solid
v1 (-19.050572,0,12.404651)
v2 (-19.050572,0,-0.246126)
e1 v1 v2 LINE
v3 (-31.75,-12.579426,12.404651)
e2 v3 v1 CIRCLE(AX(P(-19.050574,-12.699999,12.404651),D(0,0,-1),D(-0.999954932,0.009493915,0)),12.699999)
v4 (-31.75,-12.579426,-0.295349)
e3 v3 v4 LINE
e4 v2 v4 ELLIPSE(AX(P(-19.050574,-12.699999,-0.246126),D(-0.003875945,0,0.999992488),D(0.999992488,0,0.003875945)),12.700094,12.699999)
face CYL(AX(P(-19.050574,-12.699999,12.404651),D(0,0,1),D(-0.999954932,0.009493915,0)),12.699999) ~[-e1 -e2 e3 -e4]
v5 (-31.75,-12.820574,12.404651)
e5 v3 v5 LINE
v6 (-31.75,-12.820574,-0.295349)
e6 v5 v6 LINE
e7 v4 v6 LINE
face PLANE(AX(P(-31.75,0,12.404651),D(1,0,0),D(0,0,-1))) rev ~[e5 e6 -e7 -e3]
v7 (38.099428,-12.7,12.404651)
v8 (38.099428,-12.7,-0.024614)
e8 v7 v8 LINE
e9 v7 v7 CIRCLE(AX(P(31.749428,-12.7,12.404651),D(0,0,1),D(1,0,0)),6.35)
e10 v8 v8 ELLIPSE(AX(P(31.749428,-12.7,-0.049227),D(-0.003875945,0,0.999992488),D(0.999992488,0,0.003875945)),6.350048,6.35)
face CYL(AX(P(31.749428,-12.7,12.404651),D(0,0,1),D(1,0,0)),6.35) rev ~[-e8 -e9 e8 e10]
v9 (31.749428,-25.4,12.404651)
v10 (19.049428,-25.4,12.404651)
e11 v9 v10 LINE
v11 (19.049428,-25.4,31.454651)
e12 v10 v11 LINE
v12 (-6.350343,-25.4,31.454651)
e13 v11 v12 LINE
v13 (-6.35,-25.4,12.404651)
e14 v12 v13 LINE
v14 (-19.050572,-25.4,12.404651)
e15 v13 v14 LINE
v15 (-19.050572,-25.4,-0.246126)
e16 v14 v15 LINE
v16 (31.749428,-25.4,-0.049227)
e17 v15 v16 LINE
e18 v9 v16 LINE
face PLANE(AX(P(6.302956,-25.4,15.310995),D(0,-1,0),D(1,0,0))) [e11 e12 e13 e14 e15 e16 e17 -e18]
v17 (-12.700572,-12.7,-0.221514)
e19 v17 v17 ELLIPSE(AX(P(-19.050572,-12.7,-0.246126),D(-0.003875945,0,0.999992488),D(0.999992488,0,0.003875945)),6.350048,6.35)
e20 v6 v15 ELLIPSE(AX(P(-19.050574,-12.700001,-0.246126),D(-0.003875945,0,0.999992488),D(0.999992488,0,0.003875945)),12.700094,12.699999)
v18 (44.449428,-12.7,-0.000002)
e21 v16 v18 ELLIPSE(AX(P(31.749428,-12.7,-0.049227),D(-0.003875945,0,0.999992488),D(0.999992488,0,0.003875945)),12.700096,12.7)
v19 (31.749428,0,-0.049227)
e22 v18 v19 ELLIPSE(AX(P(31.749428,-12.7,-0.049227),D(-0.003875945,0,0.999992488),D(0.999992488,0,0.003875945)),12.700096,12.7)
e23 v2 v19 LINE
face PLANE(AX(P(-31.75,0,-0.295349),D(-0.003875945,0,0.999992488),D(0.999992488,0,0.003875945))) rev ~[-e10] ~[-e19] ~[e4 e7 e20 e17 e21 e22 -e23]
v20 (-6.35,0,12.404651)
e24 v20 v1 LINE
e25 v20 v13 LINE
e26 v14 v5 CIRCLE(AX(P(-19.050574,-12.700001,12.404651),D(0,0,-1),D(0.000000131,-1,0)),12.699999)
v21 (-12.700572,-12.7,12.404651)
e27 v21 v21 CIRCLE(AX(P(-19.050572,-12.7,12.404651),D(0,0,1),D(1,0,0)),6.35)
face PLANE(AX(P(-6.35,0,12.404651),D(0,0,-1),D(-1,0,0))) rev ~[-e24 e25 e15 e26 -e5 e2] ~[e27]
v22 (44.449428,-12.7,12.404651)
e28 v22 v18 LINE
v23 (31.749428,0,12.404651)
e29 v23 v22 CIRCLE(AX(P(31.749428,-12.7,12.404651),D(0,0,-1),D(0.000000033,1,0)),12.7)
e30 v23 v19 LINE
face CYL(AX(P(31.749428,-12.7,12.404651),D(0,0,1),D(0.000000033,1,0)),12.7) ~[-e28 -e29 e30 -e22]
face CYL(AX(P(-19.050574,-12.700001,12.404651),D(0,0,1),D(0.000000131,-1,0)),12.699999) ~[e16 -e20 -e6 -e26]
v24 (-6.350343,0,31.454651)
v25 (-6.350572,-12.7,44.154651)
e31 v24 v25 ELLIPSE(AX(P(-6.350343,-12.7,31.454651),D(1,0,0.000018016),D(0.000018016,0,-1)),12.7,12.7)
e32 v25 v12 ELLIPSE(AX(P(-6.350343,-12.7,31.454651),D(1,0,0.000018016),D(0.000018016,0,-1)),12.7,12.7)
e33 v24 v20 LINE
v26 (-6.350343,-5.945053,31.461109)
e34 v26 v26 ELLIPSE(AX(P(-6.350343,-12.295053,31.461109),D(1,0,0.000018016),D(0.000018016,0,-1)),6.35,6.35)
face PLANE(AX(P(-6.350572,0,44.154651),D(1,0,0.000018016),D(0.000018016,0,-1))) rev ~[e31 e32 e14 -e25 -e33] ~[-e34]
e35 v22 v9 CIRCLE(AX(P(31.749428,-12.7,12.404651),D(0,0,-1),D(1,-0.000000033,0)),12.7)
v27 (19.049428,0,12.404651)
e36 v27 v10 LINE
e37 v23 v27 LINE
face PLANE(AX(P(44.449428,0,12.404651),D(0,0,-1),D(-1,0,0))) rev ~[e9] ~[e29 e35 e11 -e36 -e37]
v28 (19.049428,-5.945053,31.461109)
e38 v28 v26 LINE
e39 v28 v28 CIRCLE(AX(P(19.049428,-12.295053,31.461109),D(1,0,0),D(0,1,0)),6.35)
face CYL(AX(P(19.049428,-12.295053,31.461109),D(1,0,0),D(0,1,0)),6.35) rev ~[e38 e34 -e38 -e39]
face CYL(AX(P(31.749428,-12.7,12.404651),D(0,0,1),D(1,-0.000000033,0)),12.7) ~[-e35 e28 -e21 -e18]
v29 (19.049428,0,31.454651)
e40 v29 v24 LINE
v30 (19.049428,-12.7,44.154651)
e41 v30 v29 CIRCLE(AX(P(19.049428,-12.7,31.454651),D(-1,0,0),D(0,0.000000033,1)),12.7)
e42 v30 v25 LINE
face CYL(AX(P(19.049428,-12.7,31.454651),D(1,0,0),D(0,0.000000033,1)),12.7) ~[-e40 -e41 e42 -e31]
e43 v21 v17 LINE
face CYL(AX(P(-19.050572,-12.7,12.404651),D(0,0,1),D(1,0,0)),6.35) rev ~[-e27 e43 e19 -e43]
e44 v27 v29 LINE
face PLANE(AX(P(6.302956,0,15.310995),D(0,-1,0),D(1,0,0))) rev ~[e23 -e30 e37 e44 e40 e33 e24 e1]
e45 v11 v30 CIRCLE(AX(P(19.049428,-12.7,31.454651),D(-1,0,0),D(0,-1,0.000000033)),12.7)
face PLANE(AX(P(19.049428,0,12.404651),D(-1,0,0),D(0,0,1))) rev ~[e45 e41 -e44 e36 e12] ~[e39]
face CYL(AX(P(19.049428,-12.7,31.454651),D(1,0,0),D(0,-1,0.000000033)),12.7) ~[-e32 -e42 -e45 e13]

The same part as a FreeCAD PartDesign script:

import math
import FreeCAD as App
import Part
import Sketcher
from FreeCAD import Vector
Q = App.Units.Quantity


def add_polygon(sketch, points):
    """Adds a closed chain of lines whose ends are joined by coincident constraints."""
    first, n = sketch.GeometryCount, len(points)
    for a, b in zip(points, points[1:] + points[:1]):
        sketch.addGeometry(Part.LineSegment(App.Vector(*a, 0), App.Vector(*b, 0)), False)
    for i in range(n):
        sketch.addConstraint(Sketcher.Constraint("Coincident", first + i, 2, first + (i + 1) % n, 1))

doc = App.newDocument("Part")
body = doc.addObject("PartDesign::Body", "Body")

sketch1 = body.newObject("Sketcher::SketchObject", "Sketch")
sketch1.AttachmentSupport = (doc.getObject("XZ_Plane"), [""])
sketch1.MapMode = "FlatFace"
add_polygon(sketch1, [(-32, 12), (-32, 0), (44, 0), (44, 12), (19, 12), (19, 44), (-6, 44), (-6, 12)])
sketch1.addConstraint([
    Sketcher.Constraint("Vertical", 0),
    Sketcher.Constraint("Vertical", 2),
    Sketcher.Constraint("Horizontal", 3),
    Sketcher.Constraint("Vertical", 4),
    Sketcher.Constraint("Horizontal", 5),
    Sketcher.Constraint("Horizontal", 7),
    Sketcher.Constraint("Horizontal", 3, 2, 6, 2),
    Sketcher.Constraint("Equal", 3, 5),
    Sketcher.Constraint("Equal", 5, 7),
    Sketcher.Constraint("DistanceX", 3, 2, 3, 1, Q("1 in")),
    Sketcher.Constraint("Distance", 1, Q("3 in")),
    Sketcher.Constraint("DistanceY", 0, 2, 0, 1, Q("0.5 in")),
    Sketcher.Constraint("DistanceY", 4, 1, 4, 2, Q("1.25 in")),
    Sketcher.Constraint("DistanceX", 0, 2, -1, 1, Q("1.25 in")),
    Sketcher.Constraint("DistanceY", 2, 1, 2, 2, 12.404653),
    Sketcher.Constraint("DistanceY", 0, 2, -1, 1, 0.295349),
])
pad1 = body.newObject("PartDesign::Pad", "Pad")
pad1.Profile = sketch1
pad1.Length = Q("1 in")

sketch2 = body.newObject("Sketcher::SketchObject", "Sketch001")
sketch2.AttachmentSupport = (doc.getObject("XY_Plane"), [""])
sketch2.MapMode = "FlatFace"
sketch2.AttachmentOffset = App.Placement(Vector(0, 0, 12.404651), App.Rotation())
sketch2.addGeometry([
    Part.Circle(Vector(-19.050572, -12.7, 0), Vector(0, 0, 1), 6.35),
    Part.ArcOfCircle(Part.Circle(Vector(-19.050574, -12.699999, 0), Vector(0, 0, 1), 12.699999), math.radians(89.999993), math.radians(179.456031)),
    Part.LineSegment(Vector(-19.050572, 0, 0), Vector(-31.75, 0, 0)),
    Part.LineSegment(Vector(-31.75, 0, 0), Vector(-31.75, -12.579426, 0)),
    Part.ArcOfCircle(Part.Circle(Vector(-19.050574, -12.700001, 0), Vector(0, 0, 1), 12.699999), math.radians(-179.456031), math.radians(-89.999993)),
    Part.LineSegment(Vector(-31.75, -12.820574, 0), Vector(-31.75, -25.4, 0)),
    Part.LineSegment(Vector(-31.75, -25.4, 0), Vector(-19.050572, -25.4, 0)),
], False)
sketch2.addConstraint([
    Sketcher.Constraint("Coincident", 1, 1, 2, 1),
    Sketcher.Constraint("Coincident", 2, 2, 3, 1),
    Sketcher.Constraint("Coincident", 3, 2, 1, 2),
    Sketcher.Constraint("Coincident", 4, 1, 5, 1),
    Sketcher.Constraint("Coincident", 5, 2, 6, 1),
    Sketcher.Constraint("Coincident", 6, 2, 4, 2),
    Sketcher.Constraint("Horizontal", 2),
    Sketcher.Constraint("Vertical", 3),
    Sketcher.Constraint("Vertical", 5),
    Sketcher.Constraint("Horizontal", 6),
    Sketcher.Constraint("Coincident", 1, 3, 0, 3),
    Sketcher.Constraint("Coincident", 4, 3, 0, 3),
    Sketcher.Constraint("PointOnObject", 1, 1, -1),
    Sketcher.Constraint("Diameter", 0, Q("0.5 in")),
    Sketcher.Constraint("Radius", 1, Q("0.4999999 in")),
    Sketcher.Constraint("Radius", 4, Q("0.4999999 in")),
    Sketcher.Constraint("DistanceX", 2, 2, -1, 1, Q("1.25 in")),
    Sketcher.Constraint("DistanceX", 4, 1, -1, 1, Q("1.25 in")),
    Sketcher.Constraint("DistanceX", 2, 2, 2, 1, 12.699428),
    Sketcher.Constraint("DistanceX", 6, 1, 6, 2, 12.699428),
    Sketcher.Constraint("DistanceY", 3, 2, 3, 1, 12.579426),
])
pocket1 = body.newObject("PartDesign::Pocket", "Pocket")
pocket1.Profile = sketch2
pocket1.Length = Q("1 in")

sketch3 = body.newObject("Sketcher::SketchObject", "Sketch002")
sketch3.AttachmentSupport = (doc.getObject("XY_Plane"), [""])
sketch3.MapMode = "FlatFace"
sketch3.AttachmentOffset = App.Placement(Vector(0, 0, 12.404651), App.Rotation())
sketch3.addGeometry([
    Part.Circle(Vector(32, -13, 0), Vector(0, 0, 1), 6),
    Part.ArcOfCircle(Part.Circle(Vector(32, -13, 0), Vector(0, 0, 1), 13), math.radians(0), math.radians(90)),
    Part.LineSegment(Vector(44, -13, 0), Vector(44, 0, 0)),
    Part.LineSegment(Vector(44, 0, 0), Vector(32, 0, 0)),
    Part.ArcOfCircle(Part.Circle(Vector(32, -13, 0), Vector(0, 0, 1), 13), math.radians(-90), math.radians(0)),
    Part.LineSegment(Vector(32, -25, 0), Vector(44, -25, 0)),
    Part.LineSegment(Vector(44, -25, 0), Vector(44, -13, 0)),
], False)
sketch3.addConstraint([
    Sketcher.Constraint("Tangent", 1, 1, 2, 1),
    Sketcher.Constraint("Coincident", 2, 2, 3, 1),
    Sketcher.Constraint("Tangent", 3, 2, 1, 2),
    Sketcher.Constraint("Tangent", 4, 1, 5, 1),
    Sketcher.Constraint("Coincident", 5, 2, 6, 1),
    Sketcher.Constraint("Tangent", 6, 2, 4, 2),
    Sketcher.Constraint("Vertical", 2),
    Sketcher.Constraint("Horizontal", 3),
    Sketcher.Constraint("Horizontal", 5),
    Sketcher.Constraint("Vertical", 6),
    Sketcher.Constraint("Coincident", 1, 3, 0, 3),
    Sketcher.Constraint("Coincident", 4, 3, 0, 3),
    Sketcher.Constraint("Equal", 1, 4),
    Sketcher.Constraint("PointOnObject", 2, 2, -1),
    Sketcher.Constraint("Diameter", 0, Q("0.5 in")),
    Sketcher.Constraint("Radius", 1, Q("0.5 in")),
    Sketcher.Constraint("DistanceX", -1, 1, 0, 3, 31.749428),
])
pocket2 = body.newObject("PartDesign::Pocket", "Pocket001")
pocket2.Profile = sketch3
pocket2.Length = Q("1 in")

sketch4 = body.newObject("Sketcher::SketchObject", "Sketch003")
sketch4.AttachmentSupport = (doc.getObject("YZ_Plane"), [""])
sketch4.MapMode = "FlatFace"
sketch4.AttachmentOffset = App.Placement(Vector(0, 0, 19.049428), App.Rotation())
sketch4.addGeometry([
    Part.Circle(Vector(-12, 31, 0), Vector(0, 0, 1), 6),
    Part.ArcOfCircle(Part.Circle(Vector(-13, 31, 0), Vector(0, 0, 1), 13), math.radians(0), math.radians(90)),
    Part.LineSegment(Vector(0, 31, 0), Vector(0, 44, 0)),
    Part.LineSegment(Vector(0, 44, 0), Vector(-13, 44, 0)),
    Part.ArcOfCircle(Part.Circle(Vector(-13, 31, 0), Vector(0, 0, 1), 13), math.radians(90), math.radians(180)),
    Part.LineSegment(Vector(-13, 44, 0), Vector(-25, 44, 0)),
    Part.LineSegment(Vector(-25, 44, 0), Vector(-25, 31, 0)),
], False)
sketch4.addConstraint([
    Sketcher.Constraint("Tangent", 1, 1, 2, 1),
    Sketcher.Constraint("Coincident", 2, 2, 3, 1),
    Sketcher.Constraint("Tangent", 3, 2, 1, 2),
    Sketcher.Constraint("Tangent", 4, 1, 5, 1),
    Sketcher.Constraint("Coincident", 5, 2, 6, 1),
    Sketcher.Constraint("Tangent", 6, 2, 4, 2),
    Sketcher.Constraint("Vertical", 2),
    Sketcher.Constraint("Horizontal", 3),
    Sketcher.Constraint("Horizontal", 5),
    Sketcher.Constraint("Vertical", 6),
    Sketcher.Constraint("Coincident", 4, 3, 1, 3),
    Sketcher.Constraint("Equal", 1, 4),
    Sketcher.Constraint("PointOnObject", 1, 1, -2),
    Sketcher.Constraint("Diameter", 0, Q("0.5 in")),
    Sketcher.Constraint("Radius", 1, Q("0.5 in")),
    Sketcher.Constraint("DistanceY", -1, 1, 0, 3, 31.461109),
    Sketcher.Constraint("DistanceY", -1, 1, 1, 3, 31.454651),
    Sketcher.Constraint("DistanceX", 0, 3, -1, 1, 12.295053),
])
pocket3 = body.newObject("PartDesign::Pocket", "Pocket002")
pocket3.Profile = sketch4
pocket3.Length = Q("1 in")

doc.recompute()
